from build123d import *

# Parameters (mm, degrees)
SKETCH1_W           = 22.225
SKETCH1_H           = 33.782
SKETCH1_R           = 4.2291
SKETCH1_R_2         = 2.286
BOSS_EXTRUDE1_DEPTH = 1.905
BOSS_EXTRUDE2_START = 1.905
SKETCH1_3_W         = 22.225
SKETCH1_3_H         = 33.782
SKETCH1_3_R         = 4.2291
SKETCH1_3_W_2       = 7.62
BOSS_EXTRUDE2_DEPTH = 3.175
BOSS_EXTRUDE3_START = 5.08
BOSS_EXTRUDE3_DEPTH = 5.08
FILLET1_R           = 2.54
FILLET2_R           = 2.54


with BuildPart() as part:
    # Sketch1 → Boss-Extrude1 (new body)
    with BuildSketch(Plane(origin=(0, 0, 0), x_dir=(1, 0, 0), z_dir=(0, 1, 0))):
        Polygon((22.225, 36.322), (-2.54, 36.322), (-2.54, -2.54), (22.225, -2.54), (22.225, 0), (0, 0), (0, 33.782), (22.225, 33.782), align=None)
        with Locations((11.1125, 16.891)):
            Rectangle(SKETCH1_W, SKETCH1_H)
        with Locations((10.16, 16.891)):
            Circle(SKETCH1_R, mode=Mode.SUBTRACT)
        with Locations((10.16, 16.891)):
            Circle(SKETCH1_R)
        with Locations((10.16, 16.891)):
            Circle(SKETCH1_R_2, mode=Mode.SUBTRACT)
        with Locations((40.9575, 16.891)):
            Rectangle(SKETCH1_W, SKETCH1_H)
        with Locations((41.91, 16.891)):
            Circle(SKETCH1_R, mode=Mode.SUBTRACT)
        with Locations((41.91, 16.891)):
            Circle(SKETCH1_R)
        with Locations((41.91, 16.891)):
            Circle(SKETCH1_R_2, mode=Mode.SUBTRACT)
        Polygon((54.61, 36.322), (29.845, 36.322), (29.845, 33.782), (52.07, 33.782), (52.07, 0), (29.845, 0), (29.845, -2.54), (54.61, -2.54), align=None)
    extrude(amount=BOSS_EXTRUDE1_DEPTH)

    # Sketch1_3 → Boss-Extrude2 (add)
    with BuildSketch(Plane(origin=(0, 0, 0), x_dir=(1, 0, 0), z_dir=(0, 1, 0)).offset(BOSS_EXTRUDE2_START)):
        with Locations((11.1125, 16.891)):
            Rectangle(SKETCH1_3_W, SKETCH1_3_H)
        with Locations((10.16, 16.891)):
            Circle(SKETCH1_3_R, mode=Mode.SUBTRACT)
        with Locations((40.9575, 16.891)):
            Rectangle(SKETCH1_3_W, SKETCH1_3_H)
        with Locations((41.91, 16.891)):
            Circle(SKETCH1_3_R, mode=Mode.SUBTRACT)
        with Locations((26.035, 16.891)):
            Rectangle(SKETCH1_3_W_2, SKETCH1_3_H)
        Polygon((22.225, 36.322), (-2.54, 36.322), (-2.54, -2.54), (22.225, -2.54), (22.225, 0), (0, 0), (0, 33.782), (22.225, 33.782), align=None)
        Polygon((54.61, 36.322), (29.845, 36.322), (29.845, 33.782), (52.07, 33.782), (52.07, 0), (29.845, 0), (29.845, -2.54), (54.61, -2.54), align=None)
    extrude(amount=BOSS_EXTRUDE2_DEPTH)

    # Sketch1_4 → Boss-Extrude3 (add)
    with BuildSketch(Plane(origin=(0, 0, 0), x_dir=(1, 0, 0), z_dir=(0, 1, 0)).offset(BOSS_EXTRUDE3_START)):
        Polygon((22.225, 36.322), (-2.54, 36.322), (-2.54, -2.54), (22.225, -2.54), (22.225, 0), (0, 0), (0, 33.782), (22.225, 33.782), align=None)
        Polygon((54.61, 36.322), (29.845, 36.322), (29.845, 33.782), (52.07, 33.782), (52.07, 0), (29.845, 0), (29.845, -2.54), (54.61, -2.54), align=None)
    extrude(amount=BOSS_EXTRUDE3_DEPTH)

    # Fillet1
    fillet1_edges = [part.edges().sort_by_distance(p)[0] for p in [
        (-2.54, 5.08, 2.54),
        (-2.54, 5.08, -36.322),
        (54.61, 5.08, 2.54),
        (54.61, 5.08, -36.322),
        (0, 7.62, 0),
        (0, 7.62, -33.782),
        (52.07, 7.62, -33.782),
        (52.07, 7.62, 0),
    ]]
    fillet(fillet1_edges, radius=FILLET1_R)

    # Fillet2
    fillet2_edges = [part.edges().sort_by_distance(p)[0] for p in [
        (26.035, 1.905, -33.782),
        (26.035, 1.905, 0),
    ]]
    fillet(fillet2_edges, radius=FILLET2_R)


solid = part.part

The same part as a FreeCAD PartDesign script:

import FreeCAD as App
import Part
import Sketcher

V = App.Vector
Q = App.Units.Quantity


def edges_at(feature, points):
    """Names of the edges that pass closest to the given points."""
    edges = feature.Shape.Edges
    near = lambda p: min(range(len(edges)), key=lambda i: edges[i].distToShape(Part.Vertex(*p))[0])
    return sorted({f"Edge{near(p) + 1}" for p in points})


def add_polygon(sketch, points):
    """Adds a closed chain of lines whose ends are joined by coincident constraints."""
    first, n = sketch.GeometryCount, len(points)
    for a, b in zip(points, points[1:] + points[:1]):
        sketch.addGeometry(Part.LineSegment(App.Vector(*a, 0), App.Vector(*b, 0)), False)
    for i in range(n):
        sketch.addConstraint(Sketcher.Constraint("Coincident", first + i, 2, first + (i + 1) % n, 1))

doc = App.newDocument("Part")
body = doc.addObject("PartDesign::Body", "Body")
body.AllowCompound = True

sketch1 = body.newObject("Sketcher::SketchObject", "Sketch")
sketch1.AttachmentSupport = (doc.getObject("XZ_Plane"), [""])
sketch1.MapMode = "FlatFace"
add_polygon(sketch1, [(22.2, -36.3), (-2.5, -36.3), (-2.5, 2.5), (22.2, 2.5)])
sketch1.addGeometry(Part.Circle(V(10.2, -16.9, 0), V(0, 0, 1), 2.3), False)
add_polygon(sketch1, [(29.8, 2.5), (54.6, 2.5), (54.6, -36.3), (29.8, -36.3)])
sketch1.addGeometry(Part.Circle(V(41.9, -16.9, 0), V(0, 0, 1), 2.3), False)
sketch1.addConstraint(Sketcher.Constraint("Horizontal", 0))
sketch1.addConstraint(Sketcher.Constraint("Vertical", 1))
sketch1.addConstraint(Sketcher.Constraint("Horizontal", 2))
sketch1.addConstraint(Sketcher.Constraint("Vertical", 3))
sketch1.addConstraint(Sketcher.Constraint("Horizontal", 5))
sketch1.addConstraint(Sketcher.Constraint("Vertical", 6))
sketch1.addConstraint(Sketcher.Constraint("Horizontal", 7))
sketch1.addConstraint(Sketcher.Constraint("Vertical", 8))
sketch1.addConstraint(Sketcher.Constraint("Equal", 4, 9))
sketch1.addConstraint(Sketcher.Constraint("Horizontal", 4, 3, 9, 3))
sketch1.addConstraint(Sketcher.Constraint("Horizontal", 2, 2, 5, 2))
sketch1.addConstraint(Sketcher.Constraint("Horizontal", 3, 2, 6, 2))
sketch1.addConstraint(Sketcher.Constraint("Equal", 2, 5))
sketch1.addConstraint(Sketcher.Constraint("Diameter", 4, Q("0.18 in")))
sketch1.addConstraint(Sketcher.Constraint("DistanceY", 1, 1, 1, 2, Q("1.53 in")))
sketch1.addConstraint(Sketcher.Constraint("DistanceX", -1, 1, 4, 3, Q("0.4 in")))
sketch1.addConstraint(Sketcher.Constraint("DistanceX", 0, 2, -1, 1, Q("0.1 in")))
sketch1.addConstraint(Sketcher.Constraint("DistanceY", -1, 1, 1, 2, Q("0.1 in")))
sketch1.addConstraint(Sketcher.Constraint("DistanceX", 9, 3, 5, 2, Q("0.5 in")))
sketch1.addConstraint(Sketcher.Constraint("DistanceX", 3, 2, 7, 2, Q("0.3 in")))
sketch1.addConstraint(Sketcher.Constraint("DistanceX", 0, 2, 0, 1, Q("0.975 in")))
sketch1.addConstraint(Sketcher.Constraint("DistanceY", 4, 3, -1, 1, Q("0.665 in")))
pad1 = body.newObject("PartDesign::Pad", "Pad")
pad1.Profile = sketch1
pad1.Length = Q("0.075 in")
pad1.Reversed = True

sketch2 = body.newObject("Sketcher::SketchObject", "Sketch001")
sketch2.AttachmentSupport = (doc.getObject("XZ_Plane"), [""])
sketch2.MapMode = "FlatFace"
sketch2.AttachmentOffset = App.Placement(V(0, 0, -0.075 * 25.4), App.Rotation())
add_polygon(sketch2, [(22.2, 0), (29.8, 0), (29.8, 2.5), (54.6, 2.5), (54.6, -36.3), (29.8, -36.3), (29.8, -33.8), (22.2, -33.8), (22.2, -36.3), (-2.5, -36.3), (-2.5, 2.5), (22.2, 2.5)])
sketch2.addGeometry(Part.Circle(V(10.2, -16.9, 0), V(0, 0, 1), 4.2), False)
sketch2.addGeometry(Part.Circle(V(41.9, -16.9, 0), V(0, 0, 1), 4.2), False)
sketch2.addConstraint(Sketcher.Constraint("Horizontal", 0))
sketch2.addConstraint(Sketcher.Constraint("Vertical", 1))
sketch2.addConstraint(Sketcher.Constraint("Horizontal", 2))
sketch2.addConstraint(Sketcher.Constraint("Vertical", 3))
sketch2.addConstraint(Sketcher.Constraint("Horizontal", 4))
sketch2.addConstraint(Sketcher.Constraint("Vertical", 5))
sketch2.addConstraint(Sketcher.Constraint("Horizontal", 6))
sketch2.addConstraint(Sketcher.Constraint("Vertical", 7))
sketch2.addConstraint(Sketcher.Constraint("Horizontal", 8))
sketch2.addConstraint(Sketcher.Constraint("Vertical", 9))
sketch2.addConstraint(Sketcher.Constraint("Horizontal", 10))
sketch2.addConstraint(Sketcher.Constraint("Vertical", 11))
sketch2.addConstraint(Sketcher.Constraint("Equal", 12, 13))
sketch2.addConstraint(Sketcher.Constraint("PointOnObject", 0, 2, -1))
sketch2.addConstraint(Sketcher.Constraint("Horizontal", 12, 3, 13, 3))
sketch2.addConstraint(Sketcher.Constraint("Horizontal", 4, 2, 7, 2))
sketch2.addConstraint(Sketcher.Constraint("Horizontal", 2, 2, 9, 2))
sketch2.addConstraint(Sketcher.Constraint("Vertical", 1, 2, 4, 2))
sketch2.addConstraint(Sketcher.Constraint("Vertical", 7, 2, 10, 2))
sketch2.addConstraint(Sketcher.Constraint("Equal", 4, 8))
sketch2.addConstraint(Sketcher.Constraint("Equal", 1, 5))
sketch2.addConstraint(Sketcher.Constraint("Diameter", 12, Q("0.333 in")))
sketch2.addConstraint(Sketcher.Constraint("DistanceX", 0, 1, 0, 2, Q("0.3 in")))
sketch2.addConstraint(Sketcher.Constraint("DistanceY", 1, 1, 1, 2, Q("0.1 in")))
sketch2.addConstraint(Sketcher.Constraint("DistanceY", 3, 2, 3, 1, Q("1.53 in")))
sketch2.addConstraint(Sketcher.Constraint("DistanceX", -1, 1, 12, 3, Q("0.4 in")))
sketch2.addConstraint(Sketcher.Constraint("DistanceX", 8, 2, -1, 1, Q("0.1 in")))
sketch2.addConstraint(Sketcher.Constraint("DistanceX", 13, 3, 2, 2, Q("0.5 in")))
sketch2.addConstraint(Sketcher.Constraint("DistanceX", 2, 1, 2, 2, Q("0.975 in")))
sketch2.addConstraint(Sketcher.Constraint("DistanceY", 12, 3, -1, 1, Q("0.665 in")))
pad2 = body.newObject("PartDesign::Pad", "Pad001")
pad2.Profile = sketch2
pad2.Length = Q("0.125 in")
pad2.Reversed = True

sketch3 = body.newObject("Sketcher::SketchObject", "Sketch002")
sketch3.AttachmentSupport = (doc.getObject("XZ_Plane"), [""])
sketch3.MapMode = "FlatFace"
sketch3.AttachmentOffset = App.Placement(V(0, 0, -0.2 * 25.4), App.Rotation())
add_polygon(sketch3, [(22.2, -36.3), (-2.5, -36.3), (-2.5, 2.5), (22.2, 2.5), (22.2, 0), (0, 0), (0, -33.8), (22.2, -33.8)])
add_polygon(sketch3, [(54.6, -36.3), (29.8, -36.3), (29.8, -33.8), (52.1, -33.8), (52.1, 0), (29.8, 0), (29.8, 2.5), (54.6, 2.5)])
sketch3.addConstraint(Sketcher.Constraint("Horizontal", 0))
sketch3.addConstraint(Sketcher.Constraint("Vertical", 1))
sketch3.addConstraint(Sketcher.Constraint("Horizontal", 2))
sketch3.addConstraint(Sketcher.Constraint("Vertical", 3))
sketch3.addConstraint(Sketcher.Constraint("Horizontal", 4))
sketch3.addConstraint(Sketcher.Constraint("Vertical", 5))
sketch3.addConstraint(Sketcher.Constraint("Horizontal", 6))
sketch3.addConstraint(Sketcher.Constraint("Vertical", 7))
sketch3.addConstraint(Sketcher.Constraint("Horizontal", 8))
sketch3.addConstraint(Sketcher.Constraint("Vertical", 9))
sketch3.addConstraint(Sketcher.Constraint("Horizontal", 10))
sketch3.addConstraint(Sketcher.Constraint("Vertical", 11))
sketch3.addConstraint(Sketcher.Constraint("Horizontal", 12))
sketch3.addConstraint(Sketcher.Constraint("Vertical", 13))
sketch3.addConstraint(Sketcher.Constraint("Horizontal", 14))
sketch3.addConstraint(Sketcher.Constraint("Vertical", 15))
sketch3.addConstraint(Sketcher.Constraint("Coincident", 4, 2, -1, 1))
sketch3.addConstraint(Sketcher.Constraint("PointOnObject", 11, 2, -1))
sketch3.addConstraint(Sketcher.Constraint("Horizontal", 7, 2, 8, 2))
sketch3.addConstraint(Sketcher.Constraint("Horizontal", 6, 2, 9, 2))
sketch3.addConstraint(Sketcher.Constraint("Horizontal", 2, 2, 13, 2))
sketch3.addConstraint(Sketcher.Constraint("Vertical", 3, 2, 6, 2))
sketch3.addConstraint(Sketcher.Constraint("Vertical", 9, 2, 12, 2))
sketch3.addConstraint(Sketcher.Constraint("Equal", 2, 8))
sketch3.addConstraint(Sketcher.Constraint("Equal", 6, 10))
sketch3.addConstraint(Sketcher.Constraint("Equal", 3, 7))
sketch3.addConstraint(Sketcher.Constraint("DistanceY", 3, 2, 3, 1, Q("0.1 in")))
sketch3.addConstraint(Sketcher.Constraint("DistanceY", 1, 1, 1, 2, Q("1.53 in")))
sketch3.addConstraint(Sketcher.Constraint("DistanceX", 0, 2, -1, 1, Q("0.1 in")))
sketch3.addConstraint(Sketcher.Constraint("DistanceX", 7, 2, 8, 2, Q("0.3 in")))
sketch3.addConstraint(Sketcher.Constraint("DistanceX", 0, 2, 0, 1, Q("0.975 in")))
pad3 = body.newObject("PartDesign::Pad", "Pad002")
pad3.Profile = sketch3
pad3.Length = Q("0.2 in")
pad3.Reversed = True
doc.recompute()

fillet = body.newObject("PartDesign::Fillet", "Fillet")
fillet.Base = (pad3, edges_at(pad3, [
    (-2.54, 5.08, 2.54),
    (-2.54, 5.08, -36.322),
    (54.61, 5.08, 2.54),
    (54.61, 5.08, -36.322),
    (0, 7.62, 0),
    (0, 7.62, -33.782),
    (52.07, 7.62, -33.782),
    (52.07, 7.62, 0),
]))
fillet.Radius = Q("0.1 in")
doc.recompute()

fillet2 = body.newObject("PartDesign::Fillet", "Fillet001")
fillet2.Base = (fillet, edges_at(fillet, [(26.035, 1.905, -33.782), (26.035, 1.905, 0)]))
fillet2.Radius = Q("0.1 in")

doc.recompute()
